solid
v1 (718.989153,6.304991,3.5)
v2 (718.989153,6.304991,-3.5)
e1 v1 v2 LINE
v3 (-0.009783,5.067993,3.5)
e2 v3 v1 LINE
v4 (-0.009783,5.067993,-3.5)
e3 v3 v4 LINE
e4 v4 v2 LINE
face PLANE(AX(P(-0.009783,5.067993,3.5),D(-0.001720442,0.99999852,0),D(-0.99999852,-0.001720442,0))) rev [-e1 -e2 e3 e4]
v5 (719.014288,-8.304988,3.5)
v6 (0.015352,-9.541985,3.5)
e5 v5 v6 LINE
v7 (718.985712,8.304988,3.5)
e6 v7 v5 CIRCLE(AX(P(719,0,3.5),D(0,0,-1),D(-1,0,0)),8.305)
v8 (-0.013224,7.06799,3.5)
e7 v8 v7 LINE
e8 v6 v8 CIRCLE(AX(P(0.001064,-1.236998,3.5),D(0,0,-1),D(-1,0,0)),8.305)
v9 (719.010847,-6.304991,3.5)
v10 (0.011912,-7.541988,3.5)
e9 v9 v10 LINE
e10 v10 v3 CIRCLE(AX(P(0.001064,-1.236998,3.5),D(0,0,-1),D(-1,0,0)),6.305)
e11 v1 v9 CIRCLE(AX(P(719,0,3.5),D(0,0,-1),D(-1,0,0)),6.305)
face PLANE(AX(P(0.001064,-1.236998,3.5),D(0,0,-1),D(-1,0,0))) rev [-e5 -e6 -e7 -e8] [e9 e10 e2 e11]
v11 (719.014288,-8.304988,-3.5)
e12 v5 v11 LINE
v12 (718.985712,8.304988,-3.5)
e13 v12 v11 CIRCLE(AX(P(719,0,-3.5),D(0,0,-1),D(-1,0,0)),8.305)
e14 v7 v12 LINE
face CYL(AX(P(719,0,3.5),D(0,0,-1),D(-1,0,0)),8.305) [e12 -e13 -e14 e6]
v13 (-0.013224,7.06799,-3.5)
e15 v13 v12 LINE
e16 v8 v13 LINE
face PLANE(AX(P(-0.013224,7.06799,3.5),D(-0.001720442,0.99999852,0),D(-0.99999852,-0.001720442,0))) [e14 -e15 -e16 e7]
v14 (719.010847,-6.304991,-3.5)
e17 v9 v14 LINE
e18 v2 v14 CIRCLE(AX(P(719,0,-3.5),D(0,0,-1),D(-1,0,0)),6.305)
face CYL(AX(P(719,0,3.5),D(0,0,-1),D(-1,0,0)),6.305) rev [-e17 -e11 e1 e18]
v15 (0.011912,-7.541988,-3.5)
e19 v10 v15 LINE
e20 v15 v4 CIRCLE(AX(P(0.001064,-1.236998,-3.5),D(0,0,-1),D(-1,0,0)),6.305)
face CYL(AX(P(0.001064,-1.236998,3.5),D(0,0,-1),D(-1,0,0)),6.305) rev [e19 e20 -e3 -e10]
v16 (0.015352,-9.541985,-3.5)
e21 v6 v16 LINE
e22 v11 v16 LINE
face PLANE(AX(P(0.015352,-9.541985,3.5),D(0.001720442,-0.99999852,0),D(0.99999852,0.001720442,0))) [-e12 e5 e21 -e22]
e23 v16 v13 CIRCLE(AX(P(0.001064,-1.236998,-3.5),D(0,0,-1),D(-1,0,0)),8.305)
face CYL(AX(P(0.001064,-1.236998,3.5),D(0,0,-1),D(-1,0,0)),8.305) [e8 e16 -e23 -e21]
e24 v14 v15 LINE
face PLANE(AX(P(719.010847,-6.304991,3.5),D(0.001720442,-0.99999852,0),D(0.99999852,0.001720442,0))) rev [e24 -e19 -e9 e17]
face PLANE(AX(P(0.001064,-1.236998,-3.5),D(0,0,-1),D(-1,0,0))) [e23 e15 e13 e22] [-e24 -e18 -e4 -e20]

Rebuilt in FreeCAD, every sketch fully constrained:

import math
import FreeCAD as App
import Part
import Sketcher

V = App.Vector
Q = App.Units.Quantity

doc = App.newDocument("Part")
body = doc.addObject("PartDesign::Body", "Body")

# Sketch on XY plane
sketch1 = body.newObject("Sketcher::SketchObject", "Sketch")
sketch1.AttachmentSupport = (doc.getObject("XY_Plane"), [""])
sketch1.MapMode = "FlatFace"
sketch1.addGeometry(Part.LineSegment(V(0, -10, 0), V(719, -8, 0)), False)
sketch1.addGeometry(Part.ArcOfCircle(Part.Circle(V(719, 0, 0), V(0, 0, 1), 8), math.radians(-90), math.radians(90)), False)
sketch1.addGeometry(Part.LineSegment(V(719, 8, 0), V(0, 7, 0)), False)
sketch1.addGeometry(Part.ArcOfCircle(Part.Circle(V(0, -1, 0), V(0, 0, 1), 8), math.radians(90), math.radians(270)), False)
sketch1.addGeometry(Part.LineSegment(V(719, -6, 0), V(0, -8, 0)), False)
sketch1.addGeometry(Part.ArcOfCircle(Part.Circle(V(0, -1, 0), V(0, 0, 1), 6), math.radians(90), math.radians(270)), False)
sketch1.addGeometry(Part.LineSegment(V(0, 5, 0), V(719, 6, 0)), False)
sketch1.addGeometry(Part.ArcOfCircle(Part.Circle(V(719, 0, 0), V(0, 0, 1), 6), math.radians(-90), math.radians(90)), False)
sketch1.addConstraint(Sketcher.Constraint("Tangent", 0, 2, 1, 1))
sketch1.addConstraint(Sketcher.Constraint("Tangent", 1, 2, 2, 1))
sketch1.addConstraint(Sketcher.Constraint("Tangent", 2, 2, 3, 1))
sketch1.addConstraint(Sketcher.Constraint("Tangent", 3, 2, 0, 1))
sketch1.addConstraint(Sketcher.Constraint("Tangent", 4, 2, 5, 2))
sketch1.addConstraint(Sketcher.Constraint("Tangent", 5, 1, 6, 1))
sketch1.addConstraint(Sketcher.Constraint("Tangent", 6, 2, 7, 2))
sketch1.addConstraint(Sketcher.Constraint("Tangent", 7, 1, 4, 1))
sketch1.addConstraint(Sketcher.Constraint("Coincident", 5, 3, 3, 3))
sketch1.addConstraint(Sketcher.Constraint("Coincident", 7, 3, 1, 3))
sketch1.addConstraint(Sketcher.Constraint("Equal", 1, 3))
sketch1.addConstraint(Sketcher.Constraint("Equal", 5, 7))
sketch1.addConstraint(Sketcher.Constraint("PointOnObject", 1, 3, -1))
sketch1.addConstraint(Sketcher.Constraint("Distance", 0, Q("719 mm")))
sketch1.addConstraint(Sketcher.Constraint("DistanceX", -1, 1, 1, 3, Q("719 mm")))
sketch1.addConstraint(Sketcher.Constraint("Radius", 1, Q("8.305 mm")))
sketch1.addConstraint(Sketcher.Constraint("Radius", 5, Q("6.305 mm")))
sketch1.addConstraint(Sketcher.Constraint("DistanceY", 0, 2, 4, 2, Q("0.762999 mm")))
pad1 = body.newObject("PartDesign::Pad", "Pad")
pad1.Profile = sketch1
pad1.Length = 7
pad1.Midplane = True

doc.recompute()
